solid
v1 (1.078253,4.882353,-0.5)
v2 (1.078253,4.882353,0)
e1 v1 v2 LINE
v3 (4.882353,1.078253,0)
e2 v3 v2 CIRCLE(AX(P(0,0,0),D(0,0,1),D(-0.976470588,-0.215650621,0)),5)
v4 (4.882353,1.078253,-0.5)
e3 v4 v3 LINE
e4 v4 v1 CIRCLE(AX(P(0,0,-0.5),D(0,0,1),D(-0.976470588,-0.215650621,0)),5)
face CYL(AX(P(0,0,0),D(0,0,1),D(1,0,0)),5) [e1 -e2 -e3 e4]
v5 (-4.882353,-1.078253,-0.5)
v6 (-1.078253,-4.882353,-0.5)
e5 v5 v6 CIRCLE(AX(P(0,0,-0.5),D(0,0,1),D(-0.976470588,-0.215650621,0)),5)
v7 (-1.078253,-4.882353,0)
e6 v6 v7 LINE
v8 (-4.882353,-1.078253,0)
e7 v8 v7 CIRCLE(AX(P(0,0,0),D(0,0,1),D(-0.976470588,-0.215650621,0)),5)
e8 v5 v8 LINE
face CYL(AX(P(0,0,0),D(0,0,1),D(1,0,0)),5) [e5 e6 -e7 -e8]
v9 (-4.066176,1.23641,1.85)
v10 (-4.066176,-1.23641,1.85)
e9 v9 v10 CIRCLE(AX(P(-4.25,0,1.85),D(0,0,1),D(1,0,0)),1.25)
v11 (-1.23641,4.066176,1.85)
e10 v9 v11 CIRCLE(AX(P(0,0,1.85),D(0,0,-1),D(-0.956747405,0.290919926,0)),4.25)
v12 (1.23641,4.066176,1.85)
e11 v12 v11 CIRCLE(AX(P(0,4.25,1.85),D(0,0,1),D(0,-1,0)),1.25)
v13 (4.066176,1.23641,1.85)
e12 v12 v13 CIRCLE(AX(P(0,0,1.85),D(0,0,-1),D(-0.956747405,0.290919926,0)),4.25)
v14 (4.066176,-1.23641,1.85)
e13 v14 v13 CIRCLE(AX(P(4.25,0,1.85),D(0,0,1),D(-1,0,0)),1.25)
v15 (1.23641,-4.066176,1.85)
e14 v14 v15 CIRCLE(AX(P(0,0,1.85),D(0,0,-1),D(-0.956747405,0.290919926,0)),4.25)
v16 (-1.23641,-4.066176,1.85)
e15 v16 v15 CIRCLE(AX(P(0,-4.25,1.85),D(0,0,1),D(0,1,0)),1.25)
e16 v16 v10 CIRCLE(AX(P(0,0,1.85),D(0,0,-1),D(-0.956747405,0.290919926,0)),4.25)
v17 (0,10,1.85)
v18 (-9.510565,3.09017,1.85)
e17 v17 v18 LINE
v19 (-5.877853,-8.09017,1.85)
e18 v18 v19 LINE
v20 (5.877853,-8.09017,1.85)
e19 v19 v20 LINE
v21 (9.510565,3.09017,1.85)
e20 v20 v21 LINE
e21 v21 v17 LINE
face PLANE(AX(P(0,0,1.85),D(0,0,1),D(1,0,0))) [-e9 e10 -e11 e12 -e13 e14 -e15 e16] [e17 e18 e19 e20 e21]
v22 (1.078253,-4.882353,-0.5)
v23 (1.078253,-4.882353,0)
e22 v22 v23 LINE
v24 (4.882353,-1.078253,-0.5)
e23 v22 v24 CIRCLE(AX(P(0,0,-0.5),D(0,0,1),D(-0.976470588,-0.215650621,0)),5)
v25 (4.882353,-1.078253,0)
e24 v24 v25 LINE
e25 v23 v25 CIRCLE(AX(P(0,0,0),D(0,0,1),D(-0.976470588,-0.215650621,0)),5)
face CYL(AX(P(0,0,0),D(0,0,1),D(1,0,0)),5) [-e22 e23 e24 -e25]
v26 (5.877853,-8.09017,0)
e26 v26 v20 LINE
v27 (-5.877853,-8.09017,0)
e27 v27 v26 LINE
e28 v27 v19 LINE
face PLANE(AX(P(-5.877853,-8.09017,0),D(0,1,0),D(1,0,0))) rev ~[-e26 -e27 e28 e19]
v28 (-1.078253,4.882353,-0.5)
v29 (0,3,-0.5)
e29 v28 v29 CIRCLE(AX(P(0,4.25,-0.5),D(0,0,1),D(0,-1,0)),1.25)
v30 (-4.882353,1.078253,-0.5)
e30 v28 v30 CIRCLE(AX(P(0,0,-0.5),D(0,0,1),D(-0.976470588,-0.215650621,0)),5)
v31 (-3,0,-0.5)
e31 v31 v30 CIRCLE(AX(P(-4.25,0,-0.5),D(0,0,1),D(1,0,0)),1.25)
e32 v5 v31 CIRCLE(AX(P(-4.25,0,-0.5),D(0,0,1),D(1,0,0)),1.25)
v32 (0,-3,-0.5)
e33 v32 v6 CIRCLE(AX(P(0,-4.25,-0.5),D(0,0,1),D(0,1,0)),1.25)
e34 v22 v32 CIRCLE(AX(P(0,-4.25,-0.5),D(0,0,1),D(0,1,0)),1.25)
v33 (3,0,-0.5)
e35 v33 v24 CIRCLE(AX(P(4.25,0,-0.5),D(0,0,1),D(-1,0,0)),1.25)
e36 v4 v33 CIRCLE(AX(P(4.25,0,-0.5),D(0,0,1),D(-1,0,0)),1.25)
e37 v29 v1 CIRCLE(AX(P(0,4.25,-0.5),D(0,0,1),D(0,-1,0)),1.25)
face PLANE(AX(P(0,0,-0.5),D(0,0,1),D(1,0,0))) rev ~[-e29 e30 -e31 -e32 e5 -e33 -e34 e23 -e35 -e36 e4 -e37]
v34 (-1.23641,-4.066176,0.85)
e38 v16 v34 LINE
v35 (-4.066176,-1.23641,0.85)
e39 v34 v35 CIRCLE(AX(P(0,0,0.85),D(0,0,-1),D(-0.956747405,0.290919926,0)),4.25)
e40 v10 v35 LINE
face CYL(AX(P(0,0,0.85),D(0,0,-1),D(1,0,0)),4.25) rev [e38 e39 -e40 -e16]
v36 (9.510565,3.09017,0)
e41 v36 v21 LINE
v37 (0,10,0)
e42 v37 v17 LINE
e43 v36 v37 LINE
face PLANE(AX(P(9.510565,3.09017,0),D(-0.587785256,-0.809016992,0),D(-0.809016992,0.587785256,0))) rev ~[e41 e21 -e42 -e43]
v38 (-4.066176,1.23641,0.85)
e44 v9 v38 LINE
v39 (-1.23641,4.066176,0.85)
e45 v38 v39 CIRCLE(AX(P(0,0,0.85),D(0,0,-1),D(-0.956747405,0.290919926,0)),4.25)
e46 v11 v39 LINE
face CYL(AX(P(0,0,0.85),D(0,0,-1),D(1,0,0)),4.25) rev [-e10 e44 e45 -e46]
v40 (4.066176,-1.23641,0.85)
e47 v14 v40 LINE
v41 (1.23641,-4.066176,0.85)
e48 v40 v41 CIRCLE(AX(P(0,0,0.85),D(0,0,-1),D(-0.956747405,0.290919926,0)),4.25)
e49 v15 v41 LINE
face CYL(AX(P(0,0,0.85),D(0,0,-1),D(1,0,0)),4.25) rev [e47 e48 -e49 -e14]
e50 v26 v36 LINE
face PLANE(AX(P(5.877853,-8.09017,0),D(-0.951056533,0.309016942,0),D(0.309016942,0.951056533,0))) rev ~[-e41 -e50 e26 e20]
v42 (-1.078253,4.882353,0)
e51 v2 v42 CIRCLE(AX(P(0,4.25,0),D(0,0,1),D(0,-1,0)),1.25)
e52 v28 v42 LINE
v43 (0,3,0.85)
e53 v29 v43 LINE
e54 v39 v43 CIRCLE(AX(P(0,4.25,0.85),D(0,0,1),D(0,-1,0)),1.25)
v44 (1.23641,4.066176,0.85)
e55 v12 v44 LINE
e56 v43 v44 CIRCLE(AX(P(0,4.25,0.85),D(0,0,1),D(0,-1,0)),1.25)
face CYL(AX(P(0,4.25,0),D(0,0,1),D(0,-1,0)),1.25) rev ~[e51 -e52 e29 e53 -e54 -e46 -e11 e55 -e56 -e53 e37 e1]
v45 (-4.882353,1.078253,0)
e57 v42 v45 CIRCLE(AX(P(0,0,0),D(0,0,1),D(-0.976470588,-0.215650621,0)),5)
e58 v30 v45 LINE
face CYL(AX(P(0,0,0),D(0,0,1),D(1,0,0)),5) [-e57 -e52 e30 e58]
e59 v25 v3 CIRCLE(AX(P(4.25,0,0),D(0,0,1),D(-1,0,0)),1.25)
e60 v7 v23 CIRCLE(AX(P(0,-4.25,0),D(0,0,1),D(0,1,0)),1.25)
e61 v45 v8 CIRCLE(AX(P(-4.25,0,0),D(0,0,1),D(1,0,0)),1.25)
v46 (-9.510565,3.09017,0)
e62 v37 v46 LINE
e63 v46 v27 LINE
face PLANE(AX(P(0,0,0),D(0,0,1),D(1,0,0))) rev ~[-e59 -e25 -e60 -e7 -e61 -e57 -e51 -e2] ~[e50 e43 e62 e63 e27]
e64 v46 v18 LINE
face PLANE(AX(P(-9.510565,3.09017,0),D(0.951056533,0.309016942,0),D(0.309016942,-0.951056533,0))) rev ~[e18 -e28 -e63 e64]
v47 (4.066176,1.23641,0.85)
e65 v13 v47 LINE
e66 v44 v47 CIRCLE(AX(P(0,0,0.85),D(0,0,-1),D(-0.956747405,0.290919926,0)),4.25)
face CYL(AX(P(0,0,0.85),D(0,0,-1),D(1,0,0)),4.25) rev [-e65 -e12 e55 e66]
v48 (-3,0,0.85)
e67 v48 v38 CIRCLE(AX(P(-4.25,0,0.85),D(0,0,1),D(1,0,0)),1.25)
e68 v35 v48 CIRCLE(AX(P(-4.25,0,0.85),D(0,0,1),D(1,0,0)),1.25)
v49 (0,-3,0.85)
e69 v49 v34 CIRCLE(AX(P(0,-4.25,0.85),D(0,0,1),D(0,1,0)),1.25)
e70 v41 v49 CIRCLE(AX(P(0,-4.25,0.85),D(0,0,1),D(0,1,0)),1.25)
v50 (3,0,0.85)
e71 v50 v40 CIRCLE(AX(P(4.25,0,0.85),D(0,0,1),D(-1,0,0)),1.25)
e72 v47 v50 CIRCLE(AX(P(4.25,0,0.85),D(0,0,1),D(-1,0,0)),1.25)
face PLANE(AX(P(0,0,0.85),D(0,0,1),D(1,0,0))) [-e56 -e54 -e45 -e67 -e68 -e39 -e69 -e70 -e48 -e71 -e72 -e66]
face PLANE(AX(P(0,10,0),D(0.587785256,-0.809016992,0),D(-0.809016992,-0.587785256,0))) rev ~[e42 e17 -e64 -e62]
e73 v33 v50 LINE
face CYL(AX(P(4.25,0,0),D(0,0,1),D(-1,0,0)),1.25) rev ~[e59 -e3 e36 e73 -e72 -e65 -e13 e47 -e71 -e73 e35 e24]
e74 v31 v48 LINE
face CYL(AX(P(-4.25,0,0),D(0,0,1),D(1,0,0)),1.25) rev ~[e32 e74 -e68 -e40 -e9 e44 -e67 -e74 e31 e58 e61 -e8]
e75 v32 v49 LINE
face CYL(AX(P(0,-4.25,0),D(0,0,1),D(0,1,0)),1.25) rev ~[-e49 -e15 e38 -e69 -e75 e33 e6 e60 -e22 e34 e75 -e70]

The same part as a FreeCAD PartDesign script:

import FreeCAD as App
import Part
import Sketcher
from FreeCAD import Vector
Q = App.Units.Quantity

doc = App.newDocument("Part")
body = doc.addObject("PartDesign::Body", "Body")
body.AllowCompound = True

sketch1 = body.newObject("Sketcher::SketchObject", "Sketch")
sketch1.AttachmentSupport = (doc.getObject("XY_Plane"), [""])
sketch1.MapMode = "FlatFace"
sketch1.addGeometry(Part.Circle(Vector(0, 40, 0), Vector(0, 0, 1), 10), False)
sketch1.addGeometry(Part.LineSegment(Vector(0, 90, 0), Vector(-8.660254, 75, 0)), False)
sketch1.addGeometry(Part.LineSegment(Vector(-8.660254, 75, 0), Vector(8.660254, 75, 0)), False)
sketch1.addGeometry(Part.LineSegment(Vector(8.660254, 75, 0), Vector(0, 90, 0)), False)
sketch1.addGeometry(Part.LineSegment(Vector(-7.071068, 127.071068, 0), Vector(-7.071068, 112.928932, 0)), False)
sketch1.addGeometry(Part.LineSegment(Vector(-7.071068, 112.928932, 0), Vector(7.071068, 112.928932, 0)), False)
sketch1.addGeometry(Part.LineSegment(Vector(7.071068, 112.928932, 0), Vector(7.071068, 127.071068, 0)), False)
sketch1.addGeometry(Part.LineSegment(Vector(7.071068, 127.071068, 0), Vector(-7.071068, 127.071068, 0)), False)
sketch1.addGeometry(Part.LineSegment(Vector(0, 10, 0), Vector(-9.510565, 3.09017, 0)), False)
sketch1.addGeometry(Part.LineSegment(Vector(-9.510565, 3.09017, 0), Vector(-5.877853, -8.09017, 0)), False)
sketch1.addGeometry(Part.LineSegment(Vector(-5.877853, -8.09017, 0), Vector(5.877853, -8.09017, 0)), False)
sketch1.addGeometry(Part.LineSegment(Vector(5.877853, -8.09017, 0), Vector(9.510565, 3.09017, 0)), False)
sketch1.addGeometry(Part.LineSegment(Vector(9.510565, 3.09017, 0), Vector(0, 10, 0)), False)
sketch1.addGeometry(Part.LineSegment(Vector(-8.660254, 205, 0), Vector(-8.660254, 195, 0)), False)
sketch1.addGeometry(Part.LineSegment(Vector(-8.660254, 195, 0), Vector(0, 190, 0)), False)
sketch1.addGeometry(Part.LineSegment(Vector(0, 190, 0), Vector(8.660254, 195, 0)), False)
sketch1.addGeometry(Part.LineSegment(Vector(8.660254, 195, 0), Vector(8.660254, 205, 0)), False)
sketch1.addGeometry(Part.LineSegment(Vector(8.660254, 205, 0), Vector(0, 210, 0)), False)
sketch1.addGeometry(Part.LineSegment(Vector(0, 210, 0), Vector(-8.660254, 205, 0)), False)
sketch1.addConstraint(Sketcher.Constraint("Coincident", 1, 2, 2, 1))
sketch1.addConstraint(Sketcher.Constraint("Coincident", 2, 2, 3, 1))
sketch1.addConstraint(Sketcher.Constraint("Coincident", 3, 2, 1, 1))
sketch1.addConstraint(Sketcher.Constraint("Coincident", 4, 2, 5, 1))
sketch1.addConstraint(Sketcher.Constraint("Coincident", 5, 2, 6, 1))
sketch1.addConstraint(Sketcher.Constraint("Coincident", 6, 2, 7, 1))
sketch1.addConstraint(Sketcher.Constraint("Coincident", 7, 2, 4, 1))
sketch1.addConstraint(Sketcher.Constraint("Coincident", 8, 2, 9, 1))
sketch1.addConstraint(Sketcher.Constraint("Coincident", 9, 2, 10, 1))
sketch1.addConstraint(Sketcher.Constraint("Coincident", 10, 2, 11, 1))
sketch1.addConstraint(Sketcher.Constraint("Coincident", 11, 2, 12, 1))
sketch1.addConstraint(Sketcher.Constraint("Coincident", 12, 2, 8, 1))
sketch1.addConstraint(Sketcher.Constraint("Coincident", 13, 2, 14, 1))
sketch1.addConstraint(Sketcher.Constraint("Coincident", 14, 2, 15, 1))
sketch1.addConstraint(Sketcher.Constraint("Coincident", 15, 2, 16, 1))
sketch1.addConstraint(Sketcher.Constraint("Coincident", 16, 2, 17, 1))
sketch1.addConstraint(Sketcher.Constraint("Coincident", 17, 2, 18, 1))
sketch1.addConstraint(Sketcher.Constraint("Coincident", 18, 2, 13, 1))
sketch1.addConstraint(Sketcher.Constraint("Horizontal", 2))
sketch1.addConstraint(Sketcher.Constraint("Vertical", 4))
sketch1.addConstraint(Sketcher.Constraint("Horizontal", 5))
sketch1.addConstraint(Sketcher.Constraint("Vertical", 6))
sketch1.addConstraint(Sketcher.Constraint("Horizontal", 7))
sketch1.addConstraint(Sketcher.Constraint("Horizontal", 10))
sketch1.addConstraint(Sketcher.Constraint("Vertical", 13))
sketch1.addConstraint(Sketcher.Constraint("Vertical", 16))
sketch1.addConstraint(Sketcher.Constraint("Symmetric", 8, 2, 11, 2, -2))
sketch1.addConstraint(Sketcher.Constraint("Symmetric", 13, 2, 15, 2, -2))
sketch1.addConstraint(Sketcher.Constraint("PointOnObject", 0, 3, -2))
sketch1.addConstraint(Sketcher.Constraint("PointOnObject", 3, 2, -2))
sketch1.addConstraint(Sketcher.Constraint("PointOnObject", 12, 2, -2))
sketch1.addConstraint(Sketcher.Constraint("PointOnObject", 14, 2, -2))
sketch1.addConstraint(Sketcher.Constraint("PointOnObject", 17, 2, -2))
sketch1.addConstraint(Sketcher.Constraint("Perpendicular", 1, 14))
sketch1.addConstraint(Sketcher.Constraint("Perpendicular", 3, 15))
sketch1.addConstraint(Sketcher.Constraint("Parallel", 14, 17))
sketch1.addConstraint(Sketcher.Constraint("Parallel", 15, 18))
sketch1.addConstraint(Sketcher.Constraint("Vertical", 1, 2, 13, 2))
sketch1.addConstraint(Sketcher.Constraint("Equal", 7, 4))
sketch1.addConstraint(Sketcher.Constraint("Equal", 8, 9))
sketch1.addConstraint(Sketcher.Constraint("Equal", 9, 11))
sketch1.addConstraint(Sketcher.Constraint("Diameter", 0, 20.0))
sketch1.addConstraint(Sketcher.Constraint("DistanceY", 13, 2, 13, 1, 10.0))
sketch1.addConstraint(Sketcher.Constraint("Angle", 1, Q("-120 deg")))
sketch1.addConstraint(Sketcher.Constraint("Angle", 8, Q("-144 deg")))
sketch1.addConstraint(Sketcher.Constraint("Angle", 9, Q("-72.000003 deg")))
sketch1.addConstraint(Sketcher.Constraint("Distance", 14, 10.0))
sketch1.addConstraint(Sketcher.Constraint("DistanceY", -1, 1, 0, 3, 40.0))
sketch1.addConstraint(Sketcher.Constraint("DistanceY", -1, 1, 1, 2, 75.0))
sketch1.addConstraint(Sketcher.Constraint("DistanceY", -1, 1, 12, 2, 10.0))
sketch1.addConstraint(Sketcher.Constraint("DistanceY", -1, 1, 13, 2, 195.0))
sketch1.addConstraint(Sketcher.Constraint("DistanceX", 1, 2, 9, 2, 2.782401))
sketch1.addConstraint(Sketcher.Constraint("DistanceX", 5, 1, 5, 2, 14.142136))
sketch1.addConstraint(Sketcher.Constraint("DistanceX", 4, 2, -1, 1, 7.071068))
sketch1.addConstraint(Sketcher.Constraint("DistanceY", -1, 1, 4, 2, 112.928932))
pad1 = body.newObject("PartDesign::Pad", "Pad")
pad1.Profile = sketch1
pad1.Length = 1.85

sketch2 = body.newObject("Sketcher::SketchObject", "Sketch001")
sketch2.AttachmentSupport = (doc.getObject("XY_Plane"), [""])
sketch2.MapMode = "FlatFace"
sketch2.addGeometry(Part.LineSegment(Vector(-20, 340.01, 0), Vector(-20, 20.01, 0)), False)
sketch2.addGeometry(Part.LineSegment(Vector(-20, 20.01, 0), Vector(20, 20.01, 0)), False)
sketch2.addGeometry(Part.LineSegment(Vector(20, 20.01, 0), Vector(20, 340.01, 0)), False)
sketch2.addGeometry(Part.LineSegment(Vector(20, 340.01, 0), Vector(-20, 340.01, 0)), False)
sketch2.addConstraint(Sketcher.Constraint("Coincident", 0, 2, 1, 1))
sketch2.addConstraint(Sketcher.Constraint("Coincident", 1, 2, 2, 1))
sketch2.addConstraint(Sketcher.Constraint("Coincident", 2, 2, 3, 1))
sketch2.addConstraint(Sketcher.Constraint("Coincident", 3, 2, 0, 1))
sketch2.addConstraint(Sketcher.Constraint("Vertical", 0))
sketch2.addConstraint(Sketcher.Constraint("Horizontal", 1))
sketch2.addConstraint(Sketcher.Constraint("Vertical", 2))
sketch2.addConstraint(Sketcher.Constraint("Horizontal", 3))
sketch2.addConstraint(Sketcher.Constraint("DistanceX", 1, 1, 1, 2, 40.0))
sketch2.addConstraint(Sketcher.Constraint("DistanceY", 0, 2, 0, 1, 320.0))
sketch2.addConstraint(Sketcher.Constraint("DistanceX", 0, 2, -1, 1, 20.0))
sketch2.addConstraint(Sketcher.Constraint("DistanceY", -1, 1, 0, 2, 20.01))
pocket1 = body.newObject("PartDesign::Pocket", "Pocket")
pocket1.Profile = sketch2
pocket1.Type = "ThroughAll"
pocket1.Midplane = True

sketch3 = body.newObject("Sketcher::SketchObject", "Sketch002")
sketch3.AttachmentSupport = (doc.getObject("XY_Plane"), [""])
sketch3.MapMode = "FlatFace"
sketch3.AttachmentOffset = App.Placement(Vector(0, 0, 0.85), App.Rotation())
sketch3.addGeometry(Part.Circle(Vector(0, 0, 0), Vector(0, 0, 1), 4.25), False)
sketch3.addConstraint(Sketcher.Constraint("Coincident", 0, 3, -1, 1))
sketch3.addConstraint(Sketcher.Constraint("Diameter", 0, 8.5))
pocket2 = body.newObject("PartDesign::Pocket", "Pocket001")
pocket2.Profile = sketch3
pocket2.Length = 99.15
pocket2.Reversed = True

sketch4 = body.newObject("Sketcher::SketchObject", "Sketch003")
sketch4.AttachmentSupport = (doc.getObject("XY_Plane"), [""])
sketch4.MapMode = "FlatFace"
sketch4.addGeometry(Part.Circle(Vector(0, 0, 0), Vector(0, 0, 1), 5), False)
sketch4.addConstraint(Sketcher.Constraint("Coincident", 0, 3, -1, 1))
sketch4.addConstraint(Sketcher.Constraint("Diameter", 0, 10.0))
pad2 = body.newObject("PartDesign::Pad", "Pad001")
pad2.Profile = sketch4
pad2.Length = 0.5
pad2.Reversed = True

sketch5 = body.newObject("Sketcher::SketchObject", "Sketch004")
sketch5.AttachmentSupport = (doc.getObject("XY_Plane"), [""])
sketch5.MapMode = "FlatFace"
sketch5.addGeometry(Part.Circle(Vector(-4.25, 0, 0), Vector(0, 0, 1), 1.25), False)
sketch5.addConstraint(Sketcher.Constraint("PointOnObject", 0, 3, -1))
sketch5.addConstraint(Sketcher.Constraint("Diameter", 0, 2.5))
sketch5.addConstraint(Sketcher.Constraint("DistanceX", 0, 3, -1, 1, 4.25))
pocket3 = body.newObject("PartDesign::Pocket", "Pocket002")
pocket3.Profile = sketch5
pocket3.Length = 100
pocket3.Midplane = True
doc.recompute()

polarpattern = body.newObject("PartDesign::PolarPattern", "PolarPattern")
polarpattern.Originals = [pocket3]
polarpattern.Axis = (doc.getObject("Z_Axis"), [""])
polarpattern.Angle = 360
polarpattern.Occurrences = 4
body.Tip = polarpattern

doc.recompute()
